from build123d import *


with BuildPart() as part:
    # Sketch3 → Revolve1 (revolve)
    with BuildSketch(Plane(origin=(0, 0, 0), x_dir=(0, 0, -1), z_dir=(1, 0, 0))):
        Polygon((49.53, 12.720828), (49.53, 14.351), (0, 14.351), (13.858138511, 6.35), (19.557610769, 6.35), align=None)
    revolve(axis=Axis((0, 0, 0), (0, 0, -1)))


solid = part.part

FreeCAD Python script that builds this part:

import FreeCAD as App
import Part
import Sketcher
Q = App.Units.Quantity


def add_polygon(sketch, points):
    """Adds a closed chain of lines whose ends are joined by coincident constraints."""
    first, n = sketch.GeometryCount, len(points)
    for a, b in zip(points, points[1:] + points[:1]):
        sketch.addGeometry(Part.LineSegment(App.Vector(*a, 0), App.Vector(*b, 0)), False)
    for i in range(n):
        sketch.addConstraint(Sketcher.Constraint("Coincident", first + i, 2, first + (i + 1) % n, 1))

doc = App.newDocument("Part")
body = doc.addObject("PartDesign::Body", "Body")

# Sketch on YZ plane
sketch1 = body.newObject("Sketcher::SketchObject", "Sketch")
sketch1.AttachmentSupport = (doc.getObject("YZ_Plane"), [""])
sketch1.MapMode = "FlatFace"
add_polygon(sketch1, [(12.720828, -49.53), (14.351, -49.53), (14.351, 0), (6.35, -13.858139), (6.35, -19.557611)])  # lines 0-4
sketch1.addConstraint(Sketcher.Constraint("Horizontal", 0))
sketch1.addConstraint(Sketcher.Constraint("Vertical", 1))
sketch1.addConstraint(Sketcher.Constraint("Vertical", 3))
sketch1.addConstraint(Sketcher.Constraint("PointOnObject", 1, 2, -1))
sketch1.addConstraint(Sketcher.Constraint("Angle", 2, Q("-120 deg")))
sketch1.addConstraint(Sketcher.Constraint("Angle", 4, Q("-78 deg")))
sketch1.addConstraint(Sketcher.Constraint("DistanceY", 1, 1, 1, 2, Q("1.95 in")))
sketch1.addConstraint(Sketcher.Constraint("Distance", 2, Q("0.63 in")))
sketch1.addConstraint(Sketcher.Constraint("DistanceX", -1, 1, 2, 2, Q("0.25 in")))
sketch1.addConstraint(Sketcher.Constraint("Distance", 4, Q("30.64199 mm")))
revolution = body.newObject("PartDesign::Revolution", "Revolution")
revolution.Profile = sketch1
revolution.ReferenceAxis = (sketch1, ["V_Axis"])
revolution.Angle = 360

doc.recompute()
